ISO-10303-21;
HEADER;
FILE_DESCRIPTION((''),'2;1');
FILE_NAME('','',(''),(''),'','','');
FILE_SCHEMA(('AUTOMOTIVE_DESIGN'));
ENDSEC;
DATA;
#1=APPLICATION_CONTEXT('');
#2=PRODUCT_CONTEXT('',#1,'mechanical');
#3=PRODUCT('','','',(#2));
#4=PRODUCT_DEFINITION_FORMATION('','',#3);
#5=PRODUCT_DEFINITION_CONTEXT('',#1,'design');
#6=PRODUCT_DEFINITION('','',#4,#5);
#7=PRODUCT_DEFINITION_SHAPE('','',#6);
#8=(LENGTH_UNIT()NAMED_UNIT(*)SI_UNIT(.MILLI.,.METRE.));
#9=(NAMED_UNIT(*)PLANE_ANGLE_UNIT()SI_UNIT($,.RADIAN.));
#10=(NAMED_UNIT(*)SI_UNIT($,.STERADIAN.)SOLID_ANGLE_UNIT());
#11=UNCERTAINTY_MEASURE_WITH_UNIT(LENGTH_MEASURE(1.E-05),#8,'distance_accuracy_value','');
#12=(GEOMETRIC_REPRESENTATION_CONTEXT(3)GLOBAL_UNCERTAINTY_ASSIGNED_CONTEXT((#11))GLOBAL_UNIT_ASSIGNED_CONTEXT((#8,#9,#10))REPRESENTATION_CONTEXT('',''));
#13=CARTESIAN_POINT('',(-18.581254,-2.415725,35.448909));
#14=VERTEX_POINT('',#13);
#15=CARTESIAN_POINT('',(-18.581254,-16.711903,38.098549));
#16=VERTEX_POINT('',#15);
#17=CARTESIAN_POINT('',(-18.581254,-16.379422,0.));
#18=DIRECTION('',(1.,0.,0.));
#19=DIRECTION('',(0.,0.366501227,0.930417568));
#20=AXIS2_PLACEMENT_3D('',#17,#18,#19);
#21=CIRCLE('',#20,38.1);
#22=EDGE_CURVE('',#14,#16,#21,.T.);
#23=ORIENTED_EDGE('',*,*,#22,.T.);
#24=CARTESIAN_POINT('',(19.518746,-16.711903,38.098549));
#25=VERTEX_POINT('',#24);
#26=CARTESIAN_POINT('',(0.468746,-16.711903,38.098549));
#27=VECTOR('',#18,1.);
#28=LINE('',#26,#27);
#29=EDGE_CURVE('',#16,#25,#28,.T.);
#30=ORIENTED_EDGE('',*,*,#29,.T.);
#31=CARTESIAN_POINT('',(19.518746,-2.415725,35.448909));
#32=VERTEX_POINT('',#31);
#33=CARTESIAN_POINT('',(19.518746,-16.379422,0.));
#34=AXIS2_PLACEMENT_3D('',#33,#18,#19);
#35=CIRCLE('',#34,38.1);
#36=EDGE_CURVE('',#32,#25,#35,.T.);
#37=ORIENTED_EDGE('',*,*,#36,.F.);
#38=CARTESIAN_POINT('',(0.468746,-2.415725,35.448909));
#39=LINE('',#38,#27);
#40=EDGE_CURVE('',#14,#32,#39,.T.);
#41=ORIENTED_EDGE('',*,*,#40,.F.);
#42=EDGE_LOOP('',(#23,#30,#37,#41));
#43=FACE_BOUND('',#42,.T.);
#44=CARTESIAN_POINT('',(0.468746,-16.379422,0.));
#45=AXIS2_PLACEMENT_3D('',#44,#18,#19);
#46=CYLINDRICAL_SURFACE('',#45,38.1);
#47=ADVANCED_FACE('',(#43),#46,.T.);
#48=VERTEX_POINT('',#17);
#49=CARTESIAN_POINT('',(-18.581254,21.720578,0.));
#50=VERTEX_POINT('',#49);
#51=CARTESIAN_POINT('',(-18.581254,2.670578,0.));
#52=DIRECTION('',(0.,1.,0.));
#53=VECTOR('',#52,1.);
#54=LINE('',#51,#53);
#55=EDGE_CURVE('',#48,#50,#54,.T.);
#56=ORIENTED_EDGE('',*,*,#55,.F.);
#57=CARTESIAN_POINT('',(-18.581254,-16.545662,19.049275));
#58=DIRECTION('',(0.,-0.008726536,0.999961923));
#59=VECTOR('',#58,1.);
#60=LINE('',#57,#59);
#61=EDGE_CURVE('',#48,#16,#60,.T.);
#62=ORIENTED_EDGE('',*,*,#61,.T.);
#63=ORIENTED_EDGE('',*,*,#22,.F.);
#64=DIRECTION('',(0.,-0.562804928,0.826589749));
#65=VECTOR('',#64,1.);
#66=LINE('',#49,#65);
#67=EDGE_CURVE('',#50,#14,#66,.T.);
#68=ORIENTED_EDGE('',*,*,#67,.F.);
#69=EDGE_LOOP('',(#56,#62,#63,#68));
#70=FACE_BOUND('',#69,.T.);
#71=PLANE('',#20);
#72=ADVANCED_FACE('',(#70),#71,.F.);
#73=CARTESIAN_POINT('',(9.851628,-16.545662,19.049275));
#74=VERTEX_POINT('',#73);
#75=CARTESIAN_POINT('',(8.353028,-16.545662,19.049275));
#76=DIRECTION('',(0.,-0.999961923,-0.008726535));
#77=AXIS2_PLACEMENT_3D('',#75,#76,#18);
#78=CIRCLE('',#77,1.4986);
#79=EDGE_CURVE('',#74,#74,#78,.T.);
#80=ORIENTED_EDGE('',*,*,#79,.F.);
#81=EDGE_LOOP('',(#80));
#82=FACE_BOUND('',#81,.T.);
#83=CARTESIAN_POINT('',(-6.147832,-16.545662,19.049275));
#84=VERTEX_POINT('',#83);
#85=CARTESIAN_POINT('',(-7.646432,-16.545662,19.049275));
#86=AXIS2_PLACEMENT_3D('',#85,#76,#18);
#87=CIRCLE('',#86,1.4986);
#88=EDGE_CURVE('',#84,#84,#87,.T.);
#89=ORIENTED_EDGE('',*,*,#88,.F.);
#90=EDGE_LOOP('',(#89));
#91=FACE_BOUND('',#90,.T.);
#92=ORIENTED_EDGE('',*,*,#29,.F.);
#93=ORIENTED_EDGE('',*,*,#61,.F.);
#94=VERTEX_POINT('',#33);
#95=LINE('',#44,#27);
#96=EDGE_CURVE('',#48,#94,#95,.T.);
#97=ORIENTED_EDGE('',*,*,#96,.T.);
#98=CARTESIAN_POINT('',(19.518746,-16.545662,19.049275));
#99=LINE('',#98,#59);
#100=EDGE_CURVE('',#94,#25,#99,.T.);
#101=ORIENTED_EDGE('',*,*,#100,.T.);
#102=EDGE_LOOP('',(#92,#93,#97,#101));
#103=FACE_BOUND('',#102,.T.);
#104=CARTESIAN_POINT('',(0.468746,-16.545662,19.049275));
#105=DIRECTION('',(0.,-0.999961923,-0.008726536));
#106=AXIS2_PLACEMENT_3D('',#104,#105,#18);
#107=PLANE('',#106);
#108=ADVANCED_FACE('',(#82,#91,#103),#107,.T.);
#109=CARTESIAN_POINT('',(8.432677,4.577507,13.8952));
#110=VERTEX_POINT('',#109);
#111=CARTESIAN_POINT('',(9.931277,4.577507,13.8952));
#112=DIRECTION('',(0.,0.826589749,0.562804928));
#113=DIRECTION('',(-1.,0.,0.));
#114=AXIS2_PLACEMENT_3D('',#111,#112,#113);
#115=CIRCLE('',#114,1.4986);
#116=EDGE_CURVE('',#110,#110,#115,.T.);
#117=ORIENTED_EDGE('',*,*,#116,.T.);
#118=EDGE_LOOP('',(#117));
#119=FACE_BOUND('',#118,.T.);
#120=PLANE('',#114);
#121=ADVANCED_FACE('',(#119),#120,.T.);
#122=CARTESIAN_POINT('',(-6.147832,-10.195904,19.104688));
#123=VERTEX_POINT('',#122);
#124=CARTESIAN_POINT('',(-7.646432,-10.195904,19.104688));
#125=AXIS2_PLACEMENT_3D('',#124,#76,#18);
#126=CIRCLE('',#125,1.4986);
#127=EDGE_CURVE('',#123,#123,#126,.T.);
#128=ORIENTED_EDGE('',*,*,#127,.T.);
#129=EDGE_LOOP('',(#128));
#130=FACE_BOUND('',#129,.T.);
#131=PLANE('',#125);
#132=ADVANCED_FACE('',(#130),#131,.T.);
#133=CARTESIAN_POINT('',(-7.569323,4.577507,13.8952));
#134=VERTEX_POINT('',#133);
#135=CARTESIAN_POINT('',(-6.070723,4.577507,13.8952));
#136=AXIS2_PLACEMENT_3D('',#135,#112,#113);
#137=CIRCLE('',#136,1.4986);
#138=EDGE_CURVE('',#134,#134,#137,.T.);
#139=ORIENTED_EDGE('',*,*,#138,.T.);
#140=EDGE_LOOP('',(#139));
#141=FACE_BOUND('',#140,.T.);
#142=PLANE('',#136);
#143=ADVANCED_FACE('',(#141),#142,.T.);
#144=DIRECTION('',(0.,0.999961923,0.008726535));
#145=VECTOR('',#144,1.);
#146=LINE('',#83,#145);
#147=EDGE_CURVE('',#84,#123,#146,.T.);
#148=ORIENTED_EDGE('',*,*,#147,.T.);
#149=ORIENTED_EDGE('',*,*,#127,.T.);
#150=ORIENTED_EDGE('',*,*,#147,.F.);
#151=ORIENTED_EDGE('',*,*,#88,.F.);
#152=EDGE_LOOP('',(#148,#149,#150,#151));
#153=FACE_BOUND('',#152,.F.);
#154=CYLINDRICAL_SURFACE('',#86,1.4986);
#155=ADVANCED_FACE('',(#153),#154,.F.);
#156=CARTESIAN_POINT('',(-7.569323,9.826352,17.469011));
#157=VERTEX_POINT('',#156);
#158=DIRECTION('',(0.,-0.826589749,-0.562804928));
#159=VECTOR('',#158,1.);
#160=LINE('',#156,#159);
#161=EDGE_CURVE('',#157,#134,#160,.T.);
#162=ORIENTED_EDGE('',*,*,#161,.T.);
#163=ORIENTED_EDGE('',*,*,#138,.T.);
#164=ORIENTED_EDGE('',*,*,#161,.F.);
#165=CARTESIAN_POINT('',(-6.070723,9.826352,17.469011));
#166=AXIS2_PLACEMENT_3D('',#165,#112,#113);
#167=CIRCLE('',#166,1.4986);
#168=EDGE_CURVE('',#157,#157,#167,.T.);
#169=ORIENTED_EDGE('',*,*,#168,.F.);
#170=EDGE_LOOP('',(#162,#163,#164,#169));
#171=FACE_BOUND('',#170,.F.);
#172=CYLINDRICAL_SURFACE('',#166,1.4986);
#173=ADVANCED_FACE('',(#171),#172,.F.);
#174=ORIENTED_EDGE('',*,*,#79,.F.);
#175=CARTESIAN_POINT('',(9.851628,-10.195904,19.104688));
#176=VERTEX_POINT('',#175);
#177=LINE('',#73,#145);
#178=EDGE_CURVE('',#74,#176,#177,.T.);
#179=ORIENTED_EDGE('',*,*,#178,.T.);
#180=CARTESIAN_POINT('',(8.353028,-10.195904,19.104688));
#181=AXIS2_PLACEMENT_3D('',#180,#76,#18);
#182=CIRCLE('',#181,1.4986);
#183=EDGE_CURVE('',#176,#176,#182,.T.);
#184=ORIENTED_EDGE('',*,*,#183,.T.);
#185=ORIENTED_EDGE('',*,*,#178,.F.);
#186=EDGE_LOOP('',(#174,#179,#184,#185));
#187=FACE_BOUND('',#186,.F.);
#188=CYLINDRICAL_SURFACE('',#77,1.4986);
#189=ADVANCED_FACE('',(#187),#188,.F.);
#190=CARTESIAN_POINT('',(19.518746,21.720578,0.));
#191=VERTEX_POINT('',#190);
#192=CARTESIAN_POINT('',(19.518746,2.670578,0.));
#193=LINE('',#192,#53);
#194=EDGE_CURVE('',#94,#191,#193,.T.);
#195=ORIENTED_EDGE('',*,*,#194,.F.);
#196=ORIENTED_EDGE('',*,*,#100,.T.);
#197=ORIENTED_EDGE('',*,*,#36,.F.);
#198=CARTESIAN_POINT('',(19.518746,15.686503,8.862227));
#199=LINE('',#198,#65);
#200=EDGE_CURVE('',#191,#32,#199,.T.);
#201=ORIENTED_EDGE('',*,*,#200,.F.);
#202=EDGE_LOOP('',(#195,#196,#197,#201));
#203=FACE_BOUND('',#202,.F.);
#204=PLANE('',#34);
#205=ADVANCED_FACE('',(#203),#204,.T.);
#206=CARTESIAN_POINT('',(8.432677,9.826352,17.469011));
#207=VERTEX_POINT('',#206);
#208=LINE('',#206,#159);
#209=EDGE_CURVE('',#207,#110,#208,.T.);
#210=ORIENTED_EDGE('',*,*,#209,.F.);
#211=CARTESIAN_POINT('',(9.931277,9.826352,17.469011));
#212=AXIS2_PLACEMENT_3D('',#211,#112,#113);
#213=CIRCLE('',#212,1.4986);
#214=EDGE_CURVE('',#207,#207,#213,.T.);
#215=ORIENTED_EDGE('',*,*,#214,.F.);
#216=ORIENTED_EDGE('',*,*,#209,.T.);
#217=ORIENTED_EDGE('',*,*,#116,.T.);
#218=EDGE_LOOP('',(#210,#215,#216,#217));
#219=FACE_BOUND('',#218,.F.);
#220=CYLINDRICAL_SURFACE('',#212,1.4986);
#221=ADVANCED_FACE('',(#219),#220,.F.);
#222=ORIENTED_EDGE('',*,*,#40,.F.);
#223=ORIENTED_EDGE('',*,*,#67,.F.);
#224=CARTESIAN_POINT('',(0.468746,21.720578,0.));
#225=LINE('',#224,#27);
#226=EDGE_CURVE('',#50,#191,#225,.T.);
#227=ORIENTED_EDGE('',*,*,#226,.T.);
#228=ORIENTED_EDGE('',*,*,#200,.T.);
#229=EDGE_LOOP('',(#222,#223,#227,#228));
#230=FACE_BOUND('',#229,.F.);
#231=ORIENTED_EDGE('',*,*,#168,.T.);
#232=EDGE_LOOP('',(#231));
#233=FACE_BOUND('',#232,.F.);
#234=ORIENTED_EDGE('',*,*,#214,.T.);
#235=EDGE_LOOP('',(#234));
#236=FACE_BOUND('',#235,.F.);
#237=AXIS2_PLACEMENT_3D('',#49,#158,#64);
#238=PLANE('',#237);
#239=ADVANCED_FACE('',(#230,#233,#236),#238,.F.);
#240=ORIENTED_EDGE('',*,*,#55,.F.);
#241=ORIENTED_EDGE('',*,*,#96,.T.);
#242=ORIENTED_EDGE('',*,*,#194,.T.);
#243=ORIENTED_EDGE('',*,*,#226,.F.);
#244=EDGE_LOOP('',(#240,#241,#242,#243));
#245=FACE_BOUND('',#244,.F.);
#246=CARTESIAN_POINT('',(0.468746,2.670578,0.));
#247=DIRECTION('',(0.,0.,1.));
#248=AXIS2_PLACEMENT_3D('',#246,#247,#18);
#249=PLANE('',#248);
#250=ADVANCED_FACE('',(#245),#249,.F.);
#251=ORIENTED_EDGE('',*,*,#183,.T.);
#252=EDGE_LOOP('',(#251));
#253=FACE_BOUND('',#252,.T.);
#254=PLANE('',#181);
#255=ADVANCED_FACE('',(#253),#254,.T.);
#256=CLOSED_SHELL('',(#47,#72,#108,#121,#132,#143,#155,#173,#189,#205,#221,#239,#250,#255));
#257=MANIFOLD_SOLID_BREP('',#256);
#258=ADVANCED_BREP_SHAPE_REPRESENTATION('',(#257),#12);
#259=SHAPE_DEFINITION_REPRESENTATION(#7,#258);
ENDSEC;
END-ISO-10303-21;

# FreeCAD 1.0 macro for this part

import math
import FreeCAD as App
import Part
import Sketcher
Q = App.Units.Quantity

doc = App.newDocument("Part")
body = doc.addObject("PartDesign::Body", "Body")

# Sketch on XY plane
sketch1 = body.newObject("Sketcher::SketchObject", "Sketch")
sketch1.AttachmentSupport = (doc.getObject("XY_Plane"), [""])
sketch1.MapMode = "FlatFace"
sketch1.addGeometry(Part.LineSegment(App.Vector(-19, 22, 0), App.Vector(-19, -16, 0)), False)
sketch1.addGeometry(Part.LineSegment(App.Vector(-19, -16, 0), App.Vector(20, -16, 0)), False)
sketch1.addGeometry(Part.LineSegment(App.Vector(20, -16, 0), App.Vector(20, 22, 0)), False)
sketch1.addGeometry(Part.LineSegment(App.Vector(20, 22, 0), App.Vector(-19, 22, 0)), False)
sketch1.addGeometry(Part.LineSegment(App.Vector(-19, -16, 0), App.Vector(20, -16, 0)), True)  # axis
sketch1.addConstraint(Sketcher.Constraint("Coincident", 0, 2, 1, 1))
sketch1.addConstraint(Sketcher.Constraint("Coincident", 1, 2, 2, 1))
sketch1.addConstraint(Sketcher.Constraint("Coincident", 2, 2, 3, 1))
sketch1.addConstraint(Sketcher.Constraint("Coincident", 3, 2, 0, 1))
sketch1.addConstraint(Sketcher.Constraint("Vertical", 0))
sketch1.addConstraint(Sketcher.Constraint("Horizontal", 1))
sketch1.addConstraint(Sketcher.Constraint("Vertical", 2))
sketch1.addConstraint(Sketcher.Constraint("Horizontal", 3))
sketch1.addConstraint(Sketcher.Constraint("Horizontal", 4))
sketch1.addConstraint(Sketcher.Constraint("Coincident", 4, 1, 0, 2))
sketch1.addConstraint(Sketcher.Constraint("Vertical", 2, 2, 4, 2))
sketch1.addConstraint(Sketcher.Constraint("Equal", 4, 0))
sketch1.addConstraint(Sketcher.Constraint("DistanceX", 1, 1, 1, 2, Q("1.5 in")))
sketch1.addConstraint(Sketcher.Constraint("DistanceY", 0, 2, -1, 1, Q("16.379422 mm")))
sketch1.addConstraint(Sketcher.Constraint("DistanceX", 0, 2, -1, 1, Q("18.581254 mm")))
revolution = body.newObject("PartDesign::Revolution", "Revolution")
revolution.Profile = sketch1
revolution.ReferenceAxis = (sketch1, ["Axis0"])
revolution.Angle = 68.5

# Sketch on YZ plane
sketch2 = body.newObject("Sketcher::SketchObject", "Sketch001")
sketch2.AttachmentSupport = (doc.getObject("YZ_Plane"), [""])
sketch2.MapMode = "FlatFace"
sketch2.AttachmentOffset = App.Placement(App.Vector(0, 0, -18.581254), App.Rotation())
sketch2.addGeometry(Part.LineSegment(App.Vector(22, 0, 0), App.Vector(-2, 35, 0)), False)
sketch2.addGeometry(Part.ArcOfCircle(Part.Circle(App.Vector(-16, 0, 0), App.Vector(0, 0, 1), 38), math.radians(0), math.radians(69)), False)
sketch2.addConstraint(Sketcher.Constraint("Coincident", 0, 1, 1, 1))
sketch2.addConstraint(Sketcher.Constraint("Coincident", 1, 2, 0, 2))
sketch2.addConstraint(Sketcher.Constraint("PointOnObject", 1, 3, -1))
sketch2.addConstraint(Sketcher.Constraint("PointOnObject", 0, 1, -1))
sketch2.addConstraint(Sketcher.Constraint("Radius", 1, Q("1.5 in")))
sketch2.addConstraint(Sketcher.Constraint("Angle", 0, Q("124.25 deg")))
sketch2.addConstraint(Sketcher.Constraint("DistanceX", 1, 3, -1, 1, Q("16.379422 mm")))
pocket1 = body.newObject("PartDesign::Pocket", "Pocket")
pocket1.Profile = sketch2
pocket1.Type = "ThroughAll"
pocket1.Reversed = True

# Sketch on an angled plane
sketch3 = body.newObject("Sketcher::SketchObject", "Sketch002")
sketch3.Placement = App.Placement(App.Vector(0.468746, -9.397573, 17.724455), App.Rotation(App.Vector(1, 0, 0), App.Vector(0, 0.366501227, 0.930417568), App.Vector(0, -0.930417568, 0.366501227), "ZXY"))
sketch3.addGeometry(Part.LineSegment(App.Vector(-19, 19, 0), App.Vector(-19, -19, 0)), False)
sketch3.addGeometry(Part.LineSegment(App.Vector(-19, -19, 0), App.Vector(19, -19, 0)), False)
sketch3.addGeometry(Part.LineSegment(App.Vector(19, -19, 0), App.Vector(19, 19, 0)), False)
sketch3.addGeometry(Part.LineSegment(App.Vector(19, 19, 0), App.Vector(-19, 19, 0)), False)
sketch3.addGeometry(Part.LineSegment(App.Vector(-19, -19, 0), App.Vector(19, -19, 0)), True)  # axis
sketch3.addConstraint(Sketcher.Constraint("Coincident", 0, 2, 1, 1))
sketch3.addConstraint(Sketcher.Constraint("Coincident", 1, 2, 2, 1))
sketch3.addConstraint(Sketcher.Constraint("Coincident", 2, 2, 3, 1))
sketch3.addConstraint(Sketcher.Constraint("Coincident", 3, 2, 0, 1))
sketch3.addConstraint(Sketcher.Constraint("Vertical", 0))
sketch3.addConstraint(Sketcher.Constraint("Horizontal", 1))
sketch3.addConstraint(Sketcher.Constraint("Vertical", 2))
sketch3.addConstraint(Sketcher.Constraint("Horizontal", 3))
sketch3.addConstraint(Sketcher.Constraint("Horizontal", 4))
sketch3.addConstraint(Sketcher.Constraint("Coincident", 4, 1, 0, 2))
sketch3.addConstraint(Sketcher.Constraint("Symmetric", 0, 2, 2, 2, -1, 1))
sketch3.addConstraint(Sketcher.Constraint("Vertical", 2, 2, 4, 2))
sketch3.addConstraint(Sketcher.Constraint("Equal", 4, 0))
sketch3.addConstraint(Sketcher.Constraint("DistanceX", 1, 1, 1, 2, Q("1.5 in")))
revolution2 = body.newObject("PartDesign::Revolution", "Revolution001")
revolution2.Profile = sketch3
revolution2.ReferenceAxis = (sketch3, ["Axis0"])
revolution2.Angle = 22

# Sketch on an angled plane
sketch4 = body.newObject("Sketcher::SketchObject", "Sketch003")
sketch4.Placement = App.Placement(App.Vector(0, -16.378174, -0.14293), App.Rotation(App.Vector(1, 0, 0), App.Vector(0, -0.008726535, 0.999961923), App.Vector(0, -0.999961923, -0.008726535), "ZXY"))
sketch4.addGeometry(Part.Circle(App.Vector(-7.6, 19.2, 0), App.Vector(0, 0, 1), 1.5), False)
sketch4.addGeometry(Part.Circle(App.Vector(8.4, 19.2, 0), App.Vector(0, 0, 1), 1.5), False)
sketch4.addConstraint(Sketcher.Constraint("Equal", 0, 1))
sketch4.addConstraint(Sketcher.Constraint("Horizontal", 0, 3, 1, 3))
sketch4.addConstraint(Sketcher.Constraint("Diameter", 0, Q("0.118 in")))
sketch4.addConstraint(Sketcher.Constraint("DistanceX", 0, 3, 1, 3, Q("0.6299 in")))
sketch4.addConstraint(Sketcher.Constraint("DistanceX", 0, 3, -1, 1, Q("7.646432 mm")))
sketch4.addConstraint(Sketcher.Constraint("DistanceY", -1, 1, 0, 3, Q("19.192936 mm")))
pocket2 = body.newObject("PartDesign::Pocket", "Pocket001")
pocket2.Profile = sketch4
pocket2.Length = Q("0.25 in")

# Sketch on an angled plane
sketch5 = body.newObject("Sketcher::SketchObject", "Sketch004")
sketch5.Placement = App.Placement(App.Vector(0, 14.840599, 10.104604), App.Rotation(App.Vector(-1, 0, 0), App.Vector(0, -0.562804928, 0.826589749), App.Vector(0, 0.826589749, 0.562804928), "ZXY"))
sketch5.addGeometry(Part.Circle(App.Vector(-9.9, 8.9, 0), App.Vector(0, 0, 1), 1.5), False)
sketch5.addGeometry(Part.Circle(App.Vector(6.1, 8.9, 0), App.Vector(0, 0, 1), 1.5), False)
sketch5.addConstraint(Sketcher.Constraint("Equal", 0, 1))
sketch5.addConstraint(Sketcher.Constraint("Horizontal", 0, 3, 1, 3))
sketch5.addConstraint(Sketcher.Constraint("Diameter", 0, Q("0.118 in")))
sketch5.addConstraint(Sketcher.Constraint("DistanceX", 0, 3, 1, 3, Q("0.63 in")))
sketch5.addConstraint(Sketcher.Constraint("DistanceX", 0, 3, -1, 1, Q("9.931277 mm")))
sketch5.addConstraint(Sketcher.Constraint("DistanceY", -1, 1, 0, 3, Q("8.909387 mm")))
pocket3 = body.newObject("PartDesign::Pocket", "Pocket002")
pocket3.Profile = sketch5
pocket3.Length = Q("0.25 in")

doc.recompute()
